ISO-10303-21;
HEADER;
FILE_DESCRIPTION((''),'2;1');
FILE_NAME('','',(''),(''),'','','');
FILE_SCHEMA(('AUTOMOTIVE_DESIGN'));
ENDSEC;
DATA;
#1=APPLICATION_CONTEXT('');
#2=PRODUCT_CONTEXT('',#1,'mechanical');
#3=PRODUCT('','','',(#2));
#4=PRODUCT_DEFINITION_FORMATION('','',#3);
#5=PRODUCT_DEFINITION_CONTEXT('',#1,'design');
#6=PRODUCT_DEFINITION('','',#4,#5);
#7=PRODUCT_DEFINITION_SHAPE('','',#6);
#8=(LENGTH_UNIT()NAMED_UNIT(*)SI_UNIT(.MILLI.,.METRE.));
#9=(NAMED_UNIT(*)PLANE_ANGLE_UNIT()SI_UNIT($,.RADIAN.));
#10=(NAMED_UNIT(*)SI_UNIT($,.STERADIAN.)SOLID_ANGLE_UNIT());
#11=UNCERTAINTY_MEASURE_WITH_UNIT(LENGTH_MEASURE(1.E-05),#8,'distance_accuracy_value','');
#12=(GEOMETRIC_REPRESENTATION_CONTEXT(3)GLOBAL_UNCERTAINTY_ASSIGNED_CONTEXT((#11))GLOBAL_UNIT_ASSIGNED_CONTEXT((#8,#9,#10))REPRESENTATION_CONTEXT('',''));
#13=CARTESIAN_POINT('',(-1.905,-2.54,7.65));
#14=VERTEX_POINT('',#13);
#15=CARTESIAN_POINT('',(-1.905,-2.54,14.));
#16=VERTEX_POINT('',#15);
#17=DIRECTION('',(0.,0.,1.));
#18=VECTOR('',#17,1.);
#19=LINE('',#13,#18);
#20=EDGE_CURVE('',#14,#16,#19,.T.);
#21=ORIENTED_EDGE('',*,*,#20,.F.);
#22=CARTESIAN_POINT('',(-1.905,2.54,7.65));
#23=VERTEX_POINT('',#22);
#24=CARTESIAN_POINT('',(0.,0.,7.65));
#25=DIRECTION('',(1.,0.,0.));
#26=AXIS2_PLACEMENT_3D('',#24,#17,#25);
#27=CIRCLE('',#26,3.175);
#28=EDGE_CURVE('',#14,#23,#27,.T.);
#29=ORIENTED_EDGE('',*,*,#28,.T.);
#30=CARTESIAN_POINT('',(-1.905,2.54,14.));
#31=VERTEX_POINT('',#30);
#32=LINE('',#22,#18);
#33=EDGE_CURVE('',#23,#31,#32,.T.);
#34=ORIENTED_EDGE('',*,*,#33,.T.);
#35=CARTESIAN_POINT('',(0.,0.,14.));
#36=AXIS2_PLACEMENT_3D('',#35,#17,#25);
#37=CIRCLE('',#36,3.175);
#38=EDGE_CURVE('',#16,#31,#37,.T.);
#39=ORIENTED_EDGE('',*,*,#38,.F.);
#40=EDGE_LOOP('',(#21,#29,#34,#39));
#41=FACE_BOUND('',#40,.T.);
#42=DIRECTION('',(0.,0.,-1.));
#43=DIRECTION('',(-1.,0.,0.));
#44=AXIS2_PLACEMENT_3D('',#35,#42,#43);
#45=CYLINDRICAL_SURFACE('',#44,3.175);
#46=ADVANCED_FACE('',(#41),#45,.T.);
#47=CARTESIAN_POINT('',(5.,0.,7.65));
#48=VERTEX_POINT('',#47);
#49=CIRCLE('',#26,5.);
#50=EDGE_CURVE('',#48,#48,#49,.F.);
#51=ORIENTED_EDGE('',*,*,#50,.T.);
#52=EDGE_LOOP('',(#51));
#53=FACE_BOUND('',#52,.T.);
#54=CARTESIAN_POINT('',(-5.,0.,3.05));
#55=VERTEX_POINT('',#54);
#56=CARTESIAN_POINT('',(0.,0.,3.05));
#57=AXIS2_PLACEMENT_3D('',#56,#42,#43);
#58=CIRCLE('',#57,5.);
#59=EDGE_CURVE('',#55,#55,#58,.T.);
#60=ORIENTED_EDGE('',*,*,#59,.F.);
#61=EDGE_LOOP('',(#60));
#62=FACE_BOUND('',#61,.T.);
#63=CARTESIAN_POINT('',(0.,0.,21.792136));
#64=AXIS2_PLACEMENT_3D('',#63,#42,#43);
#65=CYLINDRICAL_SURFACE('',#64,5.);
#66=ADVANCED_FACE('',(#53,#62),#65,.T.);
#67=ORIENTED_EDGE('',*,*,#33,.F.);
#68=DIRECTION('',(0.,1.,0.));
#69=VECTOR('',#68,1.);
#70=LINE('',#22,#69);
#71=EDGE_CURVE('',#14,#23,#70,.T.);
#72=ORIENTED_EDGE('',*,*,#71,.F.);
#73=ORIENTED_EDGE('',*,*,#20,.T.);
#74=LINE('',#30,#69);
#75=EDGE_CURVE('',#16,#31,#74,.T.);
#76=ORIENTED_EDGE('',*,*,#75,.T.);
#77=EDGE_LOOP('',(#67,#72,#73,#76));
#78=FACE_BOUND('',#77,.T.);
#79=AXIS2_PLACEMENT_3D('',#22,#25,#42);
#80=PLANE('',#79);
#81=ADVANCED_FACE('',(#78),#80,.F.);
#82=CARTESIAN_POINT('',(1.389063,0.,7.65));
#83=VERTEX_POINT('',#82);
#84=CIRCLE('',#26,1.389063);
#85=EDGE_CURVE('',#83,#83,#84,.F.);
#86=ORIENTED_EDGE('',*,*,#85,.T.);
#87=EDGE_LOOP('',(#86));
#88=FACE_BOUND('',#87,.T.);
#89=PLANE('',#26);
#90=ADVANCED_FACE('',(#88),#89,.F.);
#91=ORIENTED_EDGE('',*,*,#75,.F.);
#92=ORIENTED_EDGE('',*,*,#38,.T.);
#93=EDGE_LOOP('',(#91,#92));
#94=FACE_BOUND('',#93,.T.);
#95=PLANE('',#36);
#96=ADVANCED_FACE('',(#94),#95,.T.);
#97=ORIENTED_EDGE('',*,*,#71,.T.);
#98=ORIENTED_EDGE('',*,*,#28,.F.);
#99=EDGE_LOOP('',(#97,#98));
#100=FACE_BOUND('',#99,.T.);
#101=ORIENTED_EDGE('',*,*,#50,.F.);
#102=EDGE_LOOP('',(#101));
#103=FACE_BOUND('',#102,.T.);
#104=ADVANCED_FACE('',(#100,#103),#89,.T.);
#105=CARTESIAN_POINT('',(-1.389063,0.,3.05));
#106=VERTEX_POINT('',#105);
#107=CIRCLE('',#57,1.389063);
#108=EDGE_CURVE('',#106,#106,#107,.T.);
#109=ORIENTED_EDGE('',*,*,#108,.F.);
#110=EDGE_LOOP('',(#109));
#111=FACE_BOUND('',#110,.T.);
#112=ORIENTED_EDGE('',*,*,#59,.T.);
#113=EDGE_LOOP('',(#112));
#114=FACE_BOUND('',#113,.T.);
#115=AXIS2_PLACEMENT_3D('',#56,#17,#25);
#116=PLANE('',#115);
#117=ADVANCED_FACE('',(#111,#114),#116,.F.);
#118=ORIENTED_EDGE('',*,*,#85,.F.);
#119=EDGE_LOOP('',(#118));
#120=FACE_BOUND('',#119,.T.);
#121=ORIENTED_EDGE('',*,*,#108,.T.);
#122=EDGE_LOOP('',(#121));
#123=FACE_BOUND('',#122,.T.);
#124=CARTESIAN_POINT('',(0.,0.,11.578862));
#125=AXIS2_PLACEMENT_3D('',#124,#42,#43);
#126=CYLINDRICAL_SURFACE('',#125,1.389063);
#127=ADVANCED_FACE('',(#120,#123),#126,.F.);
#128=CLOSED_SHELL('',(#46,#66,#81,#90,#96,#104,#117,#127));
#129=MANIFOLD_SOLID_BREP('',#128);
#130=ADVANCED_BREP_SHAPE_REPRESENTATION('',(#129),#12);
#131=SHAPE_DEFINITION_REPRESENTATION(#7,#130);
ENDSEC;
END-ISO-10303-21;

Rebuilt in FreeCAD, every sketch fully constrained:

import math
import FreeCAD as App
import Part
import Sketcher

V = App.Vector
Q = App.Units.Quantity

doc = App.newDocument("Part")
body = doc.addObject("PartDesign::Body", "Body")

sketch1 = doc.addObject("Sketcher::SketchObject", "Sketch")
body.addObject(sketch1)
sketch1.AttachmentSupport = (doc.XY_Plane, [""])
sketch1.MapMode = "FlatFace"
sketch1.addGeometry(Part.Circle(V(0, 0, 0), V(0, 0, 1), 3.2), False)
sketch1.addConstraint(Sketcher.Constraint("Coincident", 0, 3, -1, 1))
sketch1.addConstraint(Sketcher.Constraint("Diameter", 0, Q("6.35 mm")))
pad1 = doc.addObject("PartDesign::Pad", "Pad")
body.addObject(pad1)
pad1.Profile = sketch1
pad1.Length = 14

sketch2 = doc.addObject("Sketcher::SketchObject", "Sketch001")
body.addObject(sketch2)
sketch2.AttachmentSupport = (doc.XY_Plane, [""])
sketch2.MapMode = "FlatFace"
sketch2.AttachmentOffset = App.Placement(V(0, 0, 7.65), App.Rotation())
sketch2.addGeometry(Part.LineSegment(V(-1.9, -2.5, 0), V(-1.9, 2.5, 0)), False)
sketch2.addGeometry(Part.ArcOfCircle(Part.Circle(V(0, 0, 0), V(0, 0, 1), 3.2), math.radians(127), math.radians(233)), False)
sketch2.addConstraint(Sketcher.Constraint("Coincident", 0, 1, 1, 2))
sketch2.addConstraint(Sketcher.Constraint("Coincident", 1, 1, 0, 2))
sketch2.addConstraint(Sketcher.Constraint("Vertical", 0))
sketch2.addConstraint(Sketcher.Constraint("Coincident", 1, 3, -1, 1))
sketch2.addConstraint(Sketcher.Constraint("Radius", 1, Q("3.175 mm")))
sketch2.addConstraint(Sketcher.Constraint("DistanceY", 0, 1, 0, 2, Q("5.08 mm")))
pocket1 = doc.addObject("PartDesign::Pocket", "Pocket")
body.addObject(pocket1)
pocket1.Profile = sketch2
pocket1.Length = 6.35
pocket1.Reversed = True

sketch3 = doc.addObject("Sketcher::SketchObject", "Sketch002")
body.addObject(sketch3)
sketch3.AttachmentSupport = (doc.XY_Plane, [""])
sketch3.MapMode = "FlatFace"
sketch3.addGeometry(Part.Circle(V(0, 0, 0), V(0, 0, 1), 3.2), False)
sketch3.addConstraint(Sketcher.Constraint("Coincident", 0, 3, -1, 1))
sketch3.addConstraint(Sketcher.Constraint("Diameter", 0, Q("6.35 mm")))
pocket2 = doc.addObject("PartDesign::Pocket", "Pocket001")
body.addObject(pocket2)
pocket2.Profile = sketch3
pocket2.Length = 3.05
pocket2.Reversed = True

sketch4 = doc.addObject("Sketcher::SketchObject", "Sketch003")
body.addObject(sketch4)
sketch4.AttachmentSupport = (doc.XY_Plane, [""])
sketch4.MapMode = "FlatFace"
sketch4.AttachmentOffset = App.Placement(V(0, 0, 3.05), App.Rotation())
sketch4.addGeometry(Part.Circle(V(0, 0, 0), V(0, 0, 1), 5), False)
sketch4.addGeometry(Part.Circle(V(0, 0, 0), V(0, 0, 1), 1.4), False)
sketch4.addConstraint(Sketcher.Constraint("Coincident", 0, 3, -1, 1))
sketch4.addConstraint(Sketcher.Constraint("Coincident", 1, 3, -1, 1))
sketch4.addConstraint(Sketcher.Constraint("Diameter", 0, Q("10 mm")))
sketch4.addConstraint(Sketcher.Constraint("Diameter", 1, Q("2.778125 mm")))
pad2 = doc.addObject("PartDesign::Pad", "Pad001")
body.addObject(pad2)
pad2.Profile = sketch4
pad2.Length = 4.6

sketch5 = doc.addObject("Sketcher::SketchObject", "Sketch004")
body.addObject(sketch5)
sketch5.AttachmentSupport = (doc.XY_Plane, [""])
sketch5.MapMode = "FlatFace"
sketch5.AttachmentOffset = App.Placement(V(0, 0, 3.05), App.Rotation())
sketch5.addGeometry(Part.Circle(V(0, 0, 0), V(0, 0, 1), 1.4), False)
sketch5.addConstraint(Sketcher.Constraint("Coincident", 0, 3, -1, 1))
sketch5.addConstraint(Sketcher.Constraint("Diameter", 0, Q("2.778125 mm")))
pocket3 = doc.addObject("PartDesign::Pocket", "Pocket002")
body.addObject(pocket3)
pocket3.Profile = sketch5
pocket3.Length = 4.6
pocket3.Reversed = True

doc.recompute()
